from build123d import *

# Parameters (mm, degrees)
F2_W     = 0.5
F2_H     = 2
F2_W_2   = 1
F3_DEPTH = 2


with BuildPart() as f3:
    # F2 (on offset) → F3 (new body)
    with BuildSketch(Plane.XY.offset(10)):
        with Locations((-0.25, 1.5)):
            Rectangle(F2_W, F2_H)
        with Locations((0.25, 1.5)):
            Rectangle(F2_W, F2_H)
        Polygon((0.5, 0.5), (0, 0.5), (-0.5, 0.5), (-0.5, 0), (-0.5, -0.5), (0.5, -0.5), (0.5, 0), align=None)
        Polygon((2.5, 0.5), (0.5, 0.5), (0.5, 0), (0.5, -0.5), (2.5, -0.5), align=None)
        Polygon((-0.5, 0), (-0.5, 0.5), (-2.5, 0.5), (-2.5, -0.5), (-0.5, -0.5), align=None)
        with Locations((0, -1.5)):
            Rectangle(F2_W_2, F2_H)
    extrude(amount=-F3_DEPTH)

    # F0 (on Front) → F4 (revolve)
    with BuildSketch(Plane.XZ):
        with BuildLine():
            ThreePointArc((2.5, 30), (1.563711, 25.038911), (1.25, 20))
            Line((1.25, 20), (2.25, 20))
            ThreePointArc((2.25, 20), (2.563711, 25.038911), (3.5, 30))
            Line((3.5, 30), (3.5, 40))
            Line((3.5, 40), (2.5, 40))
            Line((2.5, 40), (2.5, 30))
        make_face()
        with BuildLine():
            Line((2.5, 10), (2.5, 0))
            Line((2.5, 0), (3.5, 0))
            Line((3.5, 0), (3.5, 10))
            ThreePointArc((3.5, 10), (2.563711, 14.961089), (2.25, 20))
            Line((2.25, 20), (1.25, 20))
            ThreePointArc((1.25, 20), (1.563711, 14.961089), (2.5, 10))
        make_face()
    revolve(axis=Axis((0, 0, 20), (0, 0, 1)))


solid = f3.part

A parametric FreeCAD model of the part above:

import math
import FreeCAD as App
import Part
import Sketcher
from FreeCAD import Vector

doc = App.newDocument("Part")
body = doc.addObject("PartDesign::Body", "Body")

sketch1 = body.newObject("Sketcher::SketchObject", "Sketch")
sketch1.AttachmentSupport = (doc.getObject("XY_Plane"), [""])
sketch1.MapMode = "FlatFace"
sketch1.AttachmentOffset = App.Placement(Vector(0, 0, 10), App.Rotation())
sketch1.addGeometry(Part.LineSegment(Vector(-0.5, 2.5, 0), Vector(-0.5, 0.5, 0)), False)
sketch1.addGeometry(Part.LineSegment(Vector(-0.5, 0.5, 0), Vector(-2.5, 0.5, 0)), False)
sketch1.addGeometry(Part.LineSegment(Vector(-2.5, 0.5, 0), Vector(-2.5, -0.5, 0)), False)
sketch1.addGeometry(Part.LineSegment(Vector(-2.5, -0.5, 0), Vector(-0.5, -0.5, 0)), False)
sketch1.addGeometry(Part.LineSegment(Vector(-0.5, -0.5, 0), Vector(-0.5, -2.5, 0)), False)
sketch1.addGeometry(Part.LineSegment(Vector(-0.5, -2.5, 0), Vector(0.5, -2.5, 0)), False)
sketch1.addGeometry(Part.LineSegment(Vector(0.5, -2.5, 0), Vector(0.5, -0.5, 0)), False)
sketch1.addGeometry(Part.LineSegment(Vector(0.5, -0.5, 0), Vector(2.5, -0.5, 0)), False)
sketch1.addGeometry(Part.LineSegment(Vector(2.5, -0.5, 0), Vector(2.5, 0.5, 0)), False)
sketch1.addGeometry(Part.LineSegment(Vector(2.5, 0.5, 0), Vector(0.5, 0.5, 0)), False)
sketch1.addGeometry(Part.LineSegment(Vector(0.5, 0.5, 0), Vector(0.5, 2.5, 0)), False)
sketch1.addGeometry(Part.LineSegment(Vector(0.5, 2.5, 0), Vector(-0.5, 2.5, 0)), False)
sketch1.addConstraint(Sketcher.Constraint("Coincident", 0, 2, 1, 1))
sketch1.addConstraint(Sketcher.Constraint("Coincident", 1, 2, 2, 1))
sketch1.addConstraint(Sketcher.Constraint("Coincident", 2, 2, 3, 1))
sketch1.addConstraint(Sketcher.Constraint("Coincident", 3, 2, 4, 1))
sketch1.addConstraint(Sketcher.Constraint("Coincident", 4, 2, 5, 1))
sketch1.addConstraint(Sketcher.Constraint("Coincident", 5, 2, 6, 1))
sketch1.addConstraint(Sketcher.Constraint("Coincident", 6, 2, 7, 1))
sketch1.addConstraint(Sketcher.Constraint("Coincident", 7, 2, 8, 1))
sketch1.addConstraint(Sketcher.Constraint("Coincident", 8, 2, 9, 1))
sketch1.addConstraint(Sketcher.Constraint("Coincident", 9, 2, 10, 1))
sketch1.addConstraint(Sketcher.Constraint("Coincident", 10, 2, 11, 1))
sketch1.addConstraint(Sketcher.Constraint("Coincident", 11, 2, 0, 1))
sketch1.addConstraint(Sketcher.Constraint("Vertical", 0))
sketch1.addConstraint(Sketcher.Constraint("Horizontal", 1))
sketch1.addConstraint(Sketcher.Constraint("Vertical", 2))
sketch1.addConstraint(Sketcher.Constraint("Horizontal", 3))
sketch1.addConstraint(Sketcher.Constraint("Vertical", 4))
sketch1.addConstraint(Sketcher.Constraint("Horizontal", 5))
sketch1.addConstraint(Sketcher.Constraint("Vertical", 6))
sketch1.addConstraint(Sketcher.Constraint("Horizontal", 7))
sketch1.addConstraint(Sketcher.Constraint("Vertical", 8))
sketch1.addConstraint(Sketcher.Constraint("Horizontal", 9))
sketch1.addConstraint(Sketcher.Constraint("Vertical", 10))
sketch1.addConstraint(Sketcher.Constraint("Horizontal", 11))
sketch1.addConstraint(Sketcher.Constraint("Symmetric", 0, 2, 6, 2, -1, 1))
sketch1.addConstraint(Sketcher.Constraint("Symmetric", 2, 2, 8, 2, -1, 1))
sketch1.addConstraint(Sketcher.Constraint("Symmetric", 4, 2, 10, 2, -1, 1))
sketch1.addConstraint(Sketcher.Constraint("Symmetric", 3, 2, 6, 2, -2))
sketch1.addConstraint(Sketcher.Constraint("Equal", 9, 0))
sketch1.addConstraint(Sketcher.Constraint("Equal", 11, 2))
sketch1.addConstraint(Sketcher.Constraint("DistanceX", 1, 2, 1, 1, 2.0))
sketch1.addConstraint(Sketcher.Constraint("DistanceX", 5, 1, 5, 2, 1.0))
pad1 = body.newObject("PartDesign::Pad", "Pad")
pad1.Profile = sketch1
pad1.Length = 2
pad1.Reversed = True

sketch2 = body.newObject("Sketcher::SketchObject", "Sketch001")
sketch2.AttachmentSupport = (doc.getObject("XZ_Plane"), [""])
sketch2.MapMode = "FlatFace"
sketch2.addGeometry(Part.ArcOfCircle(Part.Circle(Vector(41.874969, 20.000004, 0), Vector(0, 0, 1), 40.624969), math.radians(165.749962), math.radians(180.000006)), False)
sketch2.addGeometry(Part.ArcOfCircle(Part.Circle(Vector(41.874969, 19.999996, 0), Vector(0, 0, 1), 40.624969), math.radians(179.999994), math.radians(194.250038)), False)
sketch2.addGeometry(Part.LineSegment(Vector(2.5, 10, 0), Vector(2.5, 0, 0)), False)
sketch2.addGeometry(Part.LineSegment(Vector(2.5, 0, 0), Vector(3.5, 0, 0)), False)
sketch2.addGeometry(Part.LineSegment(Vector(3.5, 0, 0), Vector(3.5, 10, 0)), False)
sketch2.addGeometry(Part.ArcOfCircle(Part.Circle(Vector(42.874969, 19.999996, 0), Vector(0, 0, 1), 40.624969), math.radians(179.999994), math.radians(194.250038)), False)
sketch2.addGeometry(Part.ArcOfCircle(Part.Circle(Vector(42.874969, 20.000004, 0), Vector(0, 0, 1), 40.624969), math.radians(165.749962), math.radians(180.000006)), False)
sketch2.addGeometry(Part.LineSegment(Vector(3.5, 30, 0), Vector(3.5, 40, 0)), False)
sketch2.addGeometry(Part.LineSegment(Vector(3.5, 40, 0), Vector(2.5, 40, 0)), False)
sketch2.addGeometry(Part.LineSegment(Vector(2.5, 40, 0), Vector(2.5, 30, 0)), False)
sketch2.addConstraint(Sketcher.Constraint("Tangent", 0, 2, 1, 1))
sketch2.addConstraint(Sketcher.Constraint("Coincident", 1, 2, 2, 1))
sketch2.addConstraint(Sketcher.Constraint("Coincident", 2, 2, 3, 1))
sketch2.addConstraint(Sketcher.Constraint("Coincident", 3, 2, 4, 1))
sketch2.addConstraint(Sketcher.Constraint("Coincident", 4, 2, 5, 2))
sketch2.addConstraint(Sketcher.Constraint("Tangent", 5, 1, 6, 2))
sketch2.addConstraint(Sketcher.Constraint("Coincident", 6, 1, 7, 1))
sketch2.addConstraint(Sketcher.Constraint("Coincident", 7, 2, 8, 1))
sketch2.addConstraint(Sketcher.Constraint("Coincident", 8, 2, 9, 1))
sketch2.addConstraint(Sketcher.Constraint("Coincident", 9, 2, 0, 1))
sketch2.addConstraint(Sketcher.Constraint("Vertical", 2))
sketch2.addConstraint(Sketcher.Constraint("Horizontal", 3))
sketch2.addConstraint(Sketcher.Constraint("Vertical", 4))
sketch2.addConstraint(Sketcher.Constraint("Vertical", 7))
sketch2.addConstraint(Sketcher.Constraint("Horizontal", 8))
sketch2.addConstraint(Sketcher.Constraint("Vertical", 9))
sketch2.addConstraint(Sketcher.Constraint("Equal", 0, 1))
sketch2.addConstraint(Sketcher.Constraint("Equal", 1, 5))
sketch2.addConstraint(Sketcher.Constraint("Equal", 5, 6))
sketch2.addConstraint(Sketcher.Constraint("PointOnObject", 2, 2, -1))
sketch2.addConstraint(Sketcher.Constraint("Horizontal", 1, 3, 5, 3))
sketch2.addConstraint(Sketcher.Constraint("Horizontal", 1, 2, 4, 2))
sketch2.addConstraint(Sketcher.Constraint("Horizontal", 0, 2, 5, 1))
sketch2.addConstraint(Sketcher.Constraint("Horizontal", 6, 1, 9, 2))
sketch2.addConstraint(Sketcher.Constraint("Vertical", 4, 2, 6, 1))
sketch2.addConstraint(Sketcher.Constraint("Equal", 4, 7))
sketch2.addConstraint(Sketcher.Constraint("DistanceX", 3, 1, 3, 2, 1.0))
sketch2.addConstraint(Sketcher.Constraint("DistanceY", 2, 2, 2, 1, 10.0))
sketch2.addConstraint(Sketcher.Constraint("DistanceY", -1, 1, 0, 2, 20.0))
sketch2.addConstraint(Sketcher.Constraint("DistanceY", -1, 1, 6, 1, 30.0))
sketch2.addConstraint(Sketcher.Constraint("DistanceX", -1, 1, 1, 2, 2.5))
sketch2.addConstraint(Sketcher.Constraint("DistanceX", -1, 1, 0, 2, 1.25))
revolution = body.newObject("PartDesign::Revolution", "Revolution")
revolution.Profile = sketch2
revolution.ReferenceAxis = (sketch2, ["V_Axis"])
revolution.Angle = 360

doc.recompute()
